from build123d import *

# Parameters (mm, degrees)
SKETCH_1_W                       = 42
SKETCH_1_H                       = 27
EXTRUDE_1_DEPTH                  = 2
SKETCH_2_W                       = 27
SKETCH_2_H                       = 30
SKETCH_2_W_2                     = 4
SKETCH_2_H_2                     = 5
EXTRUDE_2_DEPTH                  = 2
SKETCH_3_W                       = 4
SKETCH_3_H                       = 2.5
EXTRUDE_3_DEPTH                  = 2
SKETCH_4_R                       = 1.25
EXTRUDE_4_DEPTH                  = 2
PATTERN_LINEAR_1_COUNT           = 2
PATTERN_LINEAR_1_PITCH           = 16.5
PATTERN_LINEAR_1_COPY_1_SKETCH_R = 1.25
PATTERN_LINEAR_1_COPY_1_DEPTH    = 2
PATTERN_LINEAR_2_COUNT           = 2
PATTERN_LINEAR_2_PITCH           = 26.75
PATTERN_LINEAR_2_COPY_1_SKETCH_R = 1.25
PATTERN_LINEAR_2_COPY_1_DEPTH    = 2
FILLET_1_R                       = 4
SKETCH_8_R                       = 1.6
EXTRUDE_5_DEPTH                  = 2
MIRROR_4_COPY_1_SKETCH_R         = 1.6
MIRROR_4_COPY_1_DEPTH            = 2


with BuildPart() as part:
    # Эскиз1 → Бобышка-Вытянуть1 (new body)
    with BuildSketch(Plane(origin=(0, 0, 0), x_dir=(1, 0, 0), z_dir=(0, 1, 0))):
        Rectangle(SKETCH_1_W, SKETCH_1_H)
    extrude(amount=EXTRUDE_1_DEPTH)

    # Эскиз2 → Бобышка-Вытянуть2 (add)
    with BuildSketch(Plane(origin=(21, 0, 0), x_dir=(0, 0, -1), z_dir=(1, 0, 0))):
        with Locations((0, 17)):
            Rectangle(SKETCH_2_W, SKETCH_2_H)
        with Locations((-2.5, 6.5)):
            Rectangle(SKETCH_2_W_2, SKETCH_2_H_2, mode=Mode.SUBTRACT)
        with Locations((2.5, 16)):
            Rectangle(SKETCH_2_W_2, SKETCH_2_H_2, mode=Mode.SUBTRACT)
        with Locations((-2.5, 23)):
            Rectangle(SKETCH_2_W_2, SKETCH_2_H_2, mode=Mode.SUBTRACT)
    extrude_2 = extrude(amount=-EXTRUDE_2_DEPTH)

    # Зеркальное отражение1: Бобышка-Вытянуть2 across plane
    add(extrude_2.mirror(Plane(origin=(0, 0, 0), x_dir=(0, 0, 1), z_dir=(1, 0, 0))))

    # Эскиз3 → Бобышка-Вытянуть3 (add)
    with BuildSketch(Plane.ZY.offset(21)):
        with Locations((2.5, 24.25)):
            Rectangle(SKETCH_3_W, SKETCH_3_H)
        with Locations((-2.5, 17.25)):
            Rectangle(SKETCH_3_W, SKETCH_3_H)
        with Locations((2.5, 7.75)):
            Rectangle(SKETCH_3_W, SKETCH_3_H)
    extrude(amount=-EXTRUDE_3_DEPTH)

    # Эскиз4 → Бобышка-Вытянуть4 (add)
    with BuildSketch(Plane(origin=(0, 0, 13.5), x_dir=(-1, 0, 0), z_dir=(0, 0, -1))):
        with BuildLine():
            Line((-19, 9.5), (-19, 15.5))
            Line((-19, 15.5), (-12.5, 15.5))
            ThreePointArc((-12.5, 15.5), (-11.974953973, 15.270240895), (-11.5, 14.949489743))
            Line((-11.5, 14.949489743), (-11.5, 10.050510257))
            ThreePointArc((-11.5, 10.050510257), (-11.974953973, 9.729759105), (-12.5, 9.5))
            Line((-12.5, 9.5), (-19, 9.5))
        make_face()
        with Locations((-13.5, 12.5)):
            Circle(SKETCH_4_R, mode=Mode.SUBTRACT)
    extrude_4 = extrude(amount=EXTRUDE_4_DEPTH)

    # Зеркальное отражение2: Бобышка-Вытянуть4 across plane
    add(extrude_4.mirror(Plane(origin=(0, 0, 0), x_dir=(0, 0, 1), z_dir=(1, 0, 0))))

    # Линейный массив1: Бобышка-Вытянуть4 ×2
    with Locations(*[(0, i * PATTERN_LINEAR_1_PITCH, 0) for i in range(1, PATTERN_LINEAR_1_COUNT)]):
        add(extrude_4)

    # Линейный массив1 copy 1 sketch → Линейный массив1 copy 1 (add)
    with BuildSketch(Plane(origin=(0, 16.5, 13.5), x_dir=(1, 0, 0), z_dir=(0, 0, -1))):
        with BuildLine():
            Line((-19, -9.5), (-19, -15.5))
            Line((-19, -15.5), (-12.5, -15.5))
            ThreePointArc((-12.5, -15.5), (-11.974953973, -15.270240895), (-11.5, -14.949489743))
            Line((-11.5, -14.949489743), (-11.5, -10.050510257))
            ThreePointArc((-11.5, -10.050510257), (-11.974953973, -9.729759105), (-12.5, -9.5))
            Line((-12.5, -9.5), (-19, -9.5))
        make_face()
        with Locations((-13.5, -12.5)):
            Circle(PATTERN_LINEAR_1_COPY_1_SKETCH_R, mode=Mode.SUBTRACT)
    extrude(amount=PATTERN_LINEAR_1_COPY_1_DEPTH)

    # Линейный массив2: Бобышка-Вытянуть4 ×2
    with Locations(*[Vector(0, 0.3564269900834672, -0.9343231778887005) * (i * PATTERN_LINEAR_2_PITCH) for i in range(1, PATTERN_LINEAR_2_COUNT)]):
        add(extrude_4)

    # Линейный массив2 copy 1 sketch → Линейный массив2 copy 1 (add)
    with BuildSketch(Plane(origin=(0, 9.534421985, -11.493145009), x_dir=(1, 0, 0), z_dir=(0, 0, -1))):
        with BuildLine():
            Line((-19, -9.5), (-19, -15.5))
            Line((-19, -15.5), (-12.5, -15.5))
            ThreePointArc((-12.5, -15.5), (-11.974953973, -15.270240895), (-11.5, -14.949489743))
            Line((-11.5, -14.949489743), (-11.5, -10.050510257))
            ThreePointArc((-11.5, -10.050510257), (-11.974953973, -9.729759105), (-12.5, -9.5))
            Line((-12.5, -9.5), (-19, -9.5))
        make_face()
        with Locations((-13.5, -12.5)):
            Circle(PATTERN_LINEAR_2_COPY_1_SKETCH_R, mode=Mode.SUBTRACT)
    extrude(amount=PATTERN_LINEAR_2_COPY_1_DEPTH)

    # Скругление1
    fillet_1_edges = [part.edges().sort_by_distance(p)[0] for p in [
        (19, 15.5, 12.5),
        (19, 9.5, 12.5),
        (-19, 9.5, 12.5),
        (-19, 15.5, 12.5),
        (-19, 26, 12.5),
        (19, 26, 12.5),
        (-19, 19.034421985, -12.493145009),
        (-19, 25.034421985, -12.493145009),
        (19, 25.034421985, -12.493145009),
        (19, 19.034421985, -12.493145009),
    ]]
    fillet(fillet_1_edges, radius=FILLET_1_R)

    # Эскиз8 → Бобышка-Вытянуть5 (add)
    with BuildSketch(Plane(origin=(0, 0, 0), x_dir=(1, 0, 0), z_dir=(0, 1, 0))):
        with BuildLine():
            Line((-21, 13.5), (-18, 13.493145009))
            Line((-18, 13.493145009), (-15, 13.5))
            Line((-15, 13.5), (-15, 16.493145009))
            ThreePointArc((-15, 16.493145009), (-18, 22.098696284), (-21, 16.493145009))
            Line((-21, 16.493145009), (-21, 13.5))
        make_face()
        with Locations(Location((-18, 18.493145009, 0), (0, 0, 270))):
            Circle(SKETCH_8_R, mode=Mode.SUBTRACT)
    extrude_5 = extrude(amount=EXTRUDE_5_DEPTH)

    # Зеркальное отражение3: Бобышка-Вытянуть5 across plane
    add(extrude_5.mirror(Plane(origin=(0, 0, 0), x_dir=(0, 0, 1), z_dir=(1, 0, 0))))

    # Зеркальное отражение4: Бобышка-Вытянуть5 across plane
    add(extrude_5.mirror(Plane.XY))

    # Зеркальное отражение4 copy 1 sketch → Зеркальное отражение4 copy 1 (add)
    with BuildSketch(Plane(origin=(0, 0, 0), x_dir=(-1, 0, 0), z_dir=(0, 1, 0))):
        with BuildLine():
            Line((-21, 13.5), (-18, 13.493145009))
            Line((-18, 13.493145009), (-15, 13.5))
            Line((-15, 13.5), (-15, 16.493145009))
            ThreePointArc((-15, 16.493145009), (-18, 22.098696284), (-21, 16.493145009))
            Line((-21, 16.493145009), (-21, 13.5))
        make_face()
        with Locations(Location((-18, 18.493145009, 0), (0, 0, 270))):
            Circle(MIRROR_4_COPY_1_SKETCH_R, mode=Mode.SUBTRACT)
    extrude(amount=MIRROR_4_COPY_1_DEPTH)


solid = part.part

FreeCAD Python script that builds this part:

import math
import FreeCAD as App
import Part
import Sketcher

V = App.Vector


def edges_at(feature, points):
    """Names of the edges that pass closest to the given points."""
    edges = feature.Shape.Edges
    near = lambda p: min(range(len(edges)), key=lambda i: edges[i].distToShape(Part.Vertex(*p))[0])
    return sorted({f"Edge{near(p) + 1}" for p in points})


def add_polygon(sketch, points):
    """Adds a closed chain of lines whose ends are joined by coincident constraints."""
    first, n = sketch.GeometryCount, len(points)
    for a, b in zip(points, points[1:] + points[:1]):
        sketch.addGeometry(Part.LineSegment(App.Vector(*a, 0), App.Vector(*b, 0)), False)
    for i in range(n):
        sketch.addConstraint(Sketcher.Constraint("Coincident", first + i, 2, first + (i + 1) % n, 1))

doc = App.newDocument("Part")
body = doc.addObject("PartDesign::Body", "Body")

sketch1 = body.newObject("Sketcher::SketchObject", "Sketch")
sketch1.AttachmentSupport = (doc.getObject("XZ_Plane"), [""])
sketch1.MapMode = "FlatFace"
add_polygon(sketch1, [(-21, -14), (-21, 14), (21, 14), (21, -14)])
sketch1.addConstraint([
    Sketcher.Constraint("Vertical", 0),
    Sketcher.Constraint("Horizontal", 1),
    Sketcher.Constraint("Vertical", 2),
    Sketcher.Constraint("Horizontal", 3),
    Sketcher.Constraint("Symmetric", 0, 2, 2, 2, -1, 1),
    Sketcher.Constraint("DistanceX", 1, 1, 1, 2, 42.0),
    Sketcher.Constraint("DistanceY", 0, 1, 0, 2, 27.0),
])
pad1 = body.newObject("PartDesign::Pad", "Pad")
pad1.Profile = sketch1
pad1.Length = 2
pad1.Reversed = True

sketch2 = body.newObject("Sketcher::SketchObject", "Sketch001")
sketch2.AttachmentSupport = (doc.getObject("YZ_Plane"), [""])
sketch2.MapMode = "FlatFace"
sketch2.AttachmentOffset = App.Placement(V(0, 0, 21), App.Rotation())
add_polygon(sketch2, [(32, 13.5), (2, 13.5), (2, -13.5), (32, -13.5)])
add_polygon(sketch2, [(4, 0.5), (4, 4.5), (9, 4.5), (9, 0.5)])
add_polygon(sketch2, [(20.5, 0.5), (20.5, 4.5), (25.5, 4.5), (25.5, 0.5)])
add_polygon(sketch2, [(13.5, -4.5), (13.5, -0.5), (18.5, -0.5), (18.5, -4.5)])
sketch2.addConstraint([
    Sketcher.Constraint("Horizontal", 0),
    Sketcher.Constraint("Vertical", 1),
    Sketcher.Constraint("Horizontal", 2),
    Sketcher.Constraint("Vertical", 3),
    Sketcher.Constraint("Vertical", 4),
    Sketcher.Constraint("Horizontal", 5),
    Sketcher.Constraint("Vertical", 6),
    Sketcher.Constraint("Horizontal", 7),
    Sketcher.Constraint("Vertical", 8),
    Sketcher.Constraint("Horizontal", 9),
    Sketcher.Constraint("Vertical", 10),
    Sketcher.Constraint("Horizontal", 11),
    Sketcher.Constraint("Vertical", 12),
    Sketcher.Constraint("Horizontal", 13),
    Sketcher.Constraint("Vertical", 14),
    Sketcher.Constraint("Horizontal", 15),
    Sketcher.Constraint("Horizontal", 5, 2, 8, 2),
    Sketcher.Constraint("Horizontal", 7, 2, 10, 2),
    Sketcher.Constraint("Equal", 7, 9),
    Sketcher.Constraint("Equal", 11, 13),
    Sketcher.Constraint("Equal", 10, 12),
    Sketcher.Constraint("DistanceX", 0, 2, 0, 1, 30.0),
    Sketcher.Constraint("DistanceX", 5, 1, 5, 2, 5.0),
    Sketcher.Constraint("DistanceY", 1, 2, 1, 1, 27.0),
    Sketcher.Constraint("DistanceY", 4, 1, 4, 2, 4.0),
    Sketcher.Constraint("DistanceX", -1, 1, 0, 2, 2.0),
    Sketcher.Constraint("DistanceX", -1, 1, 4, 2, 4.0),
    Sketcher.Constraint("DistanceY", 4, 2, 0, 2, 9.0),
    Sketcher.Constraint("DistanceY", 12, 2, 6, 2, 1.0),
    Sketcher.Constraint("DistanceX", 12, 2, 11, 2, 7.0),
    Sketcher.Constraint("DistanceY", -1, 1, 0, 2, 13.5),
    Sketcher.Constraint("DistanceX", -1, 1, 8, 2, 20.5),
])
pad2 = body.newObject("PartDesign::Pad", "Pad001")
pad2.Profile = sketch2
pad2.Length = 2
pad2.Reversed = True
doc.recompute()

mirrored = body.newObject("PartDesign::Mirrored", "Mirrored")
mirrored.Originals = [pad2]
mirrored.MirrorPlane = (doc.getObject("YZ_Plane"), [""])
body.Tip = mirrored

sketch3 = body.newObject("Sketcher::SketchObject", "Sketch002")
sketch3.AttachmentSupport = (doc.getObject("YZ_Plane"), [""])
sketch3.MapMode = "FlatFace"
sketch3.AttachmentOffset = App.Placement(V(0, 0, -21), App.Rotation())
add_polygon(sketch3, [(25.5, 0.5), (23, 0.5), (23, 4.5), (25.5, 4.5)])
add_polygon(sketch3, [(18.5, -4.5), (16, -4.5), (16, -0.5), (18.5, -0.5)])
add_polygon(sketch3, [(9, 0.5), (6.5, 0.5), (6.5, 4.5), (9, 4.5)])
sketch3.addConstraint([
    Sketcher.Constraint("Horizontal", 0),
    Sketcher.Constraint("Vertical", 1),
    Sketcher.Constraint("Horizontal", 2),
    Sketcher.Constraint("Vertical", 3),
    Sketcher.Constraint("Horizontal", 4),
    Sketcher.Constraint("Vertical", 5),
    Sketcher.Constraint("Horizontal", 6),
    Sketcher.Constraint("Vertical", 7),
    Sketcher.Constraint("Horizontal", 8),
    Sketcher.Constraint("Vertical", 9),
    Sketcher.Constraint("Horizontal", 10),
    Sketcher.Constraint("Vertical", 11),
    Sketcher.Constraint("Horizontal", 3, 2, 8, 2),
    Sketcher.Constraint("Horizontal", 2, 2, 9, 2),
    Sketcher.Constraint("Equal", 2, 4),
    Sketcher.Constraint("Equal", 6, 8),
    Sketcher.Constraint("Equal", 3, 5),
    Sketcher.Constraint("DistanceY", 1, 1, 1, 2, 4.0),
    Sketcher.Constraint("DistanceX", 0, 2, 0, 1, 2.5),
    Sketcher.Constraint("DistanceX", -1, 1, 0, 2, 23.0),
    Sketcher.Constraint("DistanceX", -1, 1, 4, 2, 16.0),
    Sketcher.Constraint("DistanceX", -1, 1, 10, 2, 9.0),
    Sketcher.Constraint("DistanceY", 4, 2, 0, 2, 5.0),
    Sketcher.Constraint("DistanceY", -1, 1, 0, 2, 0.5),
])
pad3 = body.newObject("PartDesign::Pad", "Pad002")
pad3.Profile = sketch3
pad3.Length = 2

sketch4 = body.newObject("Sketcher::SketchObject", "Sketch003")
sketch4.AttachmentSupport = (doc.getObject("XY_Plane"), [""])
sketch4.MapMode = "FlatFace"
sketch4.AttachmentOffset = App.Placement(V(0, 0, 13.5), App.Rotation())
sketch4.addGeometry([
    Part.LineSegment(V(19, 15.5, 0), V(19, 9.5, 0)),
    Part.LineSegment(V(19, 9.5, 0), V(12.5, 9.5, 0)),
    Part.ArcOfCircle(Part.Circle(V(13.5, 12.5, 0), V(0, 0, 1), 3.2), math.radians(-129), math.radians(-108)),
    Part.LineSegment(V(11.5, 10.1, 0), V(11.5, 14.9, 0)),
    Part.ArcOfCircle(Part.Circle(V(13.5, 12.5, 0), V(0, 0, 1), 3.2), math.radians(108), math.radians(129)),
    Part.LineSegment(V(12.5, 15.5, 0), V(19, 15.5, 0)),
    Part.Circle(V(13.5, 12.5, 0), V(0, 0, 1), 1.2),
], False)
sketch4.addConstraint([
    Sketcher.Constraint("Coincident", 0, 2, 1, 1),
    Sketcher.Constraint("Coincident", 1, 2, 2, 2),
    Sketcher.Constraint("Coincident", 2, 1, 3, 1),
    Sketcher.Constraint("Coincident", 3, 2, 4, 2),
    Sketcher.Constraint("Coincident", 4, 1, 5, 1),
    Sketcher.Constraint("Coincident", 5, 2, 0, 1),
    Sketcher.Constraint("Vertical", 0),
    Sketcher.Constraint("Horizontal", 1),
    Sketcher.Constraint("Vertical", 3),
    Sketcher.Constraint("Horizontal", 5),
    Sketcher.Constraint("Coincident", 4, 3, 2, 3),
    Sketcher.Constraint("Coincident", 6, 3, 2, 3),
    Sketcher.Constraint("Equal", 2, 4),
    Sketcher.Constraint("Vertical", 1, 2, 4, 1),
    Sketcher.Constraint("Diameter", 6, 2.5),
    Sketcher.Constraint("DistanceY", 0, 2, 0, 1, 6.0),
    Sketcher.Constraint("DistanceX", 1, 2, 1, 1, 6.5),
    Sketcher.Constraint("DistanceX", -1, 1, 0, 2, 19.0),
    Sketcher.Constraint("DistanceX", 1, 2, 2, 3, 1.0),
    Sketcher.Constraint("DistanceX", 2, 1, 1, 2, 1.0),
    Sketcher.Constraint("DistanceY", -1, 1, 2, 3, 12.5),
])
pad4 = body.newObject("PartDesign::Pad", "Pad003")
pad4.Profile = sketch4
pad4.Length = 2
pad4.Reversed = True
doc.recompute()

mirrored2 = body.newObject("PartDesign::Mirrored", "Mirrored001")
mirrored2.Originals = [pad4]
mirrored2.MirrorPlane = (doc.getObject("YZ_Plane"), [""])
body.Tip = mirrored2
doc.recompute()

linearpattern = body.newObject("PartDesign::LinearPattern", "LinearPattern")
linearpattern.Originals = [pad4]
linearpattern.Direction = (doc.getObject("Y_Axis"), [""])
linearpattern.Mode = "offset"
linearpattern.Offset = 16.5
linearpattern.Occurrences = 2
body.Tip = linearpattern

sketch5 = body.newObject("Sketcher::SketchObject", "Sketch004")
sketch5.AttachmentSupport = (doc.getObject("XY_Plane"), [""])
sketch5.MapMode = "FlatFace"
sketch5.AttachmentOffset = App.Placement(V(0, 0, 13.5), App.Rotation())
sketch5.addGeometry([
    Part.LineSegment(V(-19, 26, 0), V(-19, 32, 0)),
    Part.LineSegment(V(-19, 32, 0), V(-12.5, 32, 0)),
    Part.ArcOfCircle(Part.Circle(V(-13.5, 29, 0), V(0, 0, 1), 3.2), math.radians(51), math.radians(72)),
    Part.LineSegment(V(-11.5, 31.4, 0), V(-11.5, 26.6, 0)),
    Part.ArcOfCircle(Part.Circle(V(-13.5, 29, 0), V(0, 0, 1), 3.2), math.radians(-72), math.radians(-51)),
    Part.LineSegment(V(-12.5, 26, 0), V(-19, 26, 0)),
    Part.Circle(V(-13.5, 29, 0), V(0, 0, 1), 1.2),
], False)
sketch5.addConstraint([
    Sketcher.Constraint("Coincident", 0, 2, 1, 1),
    Sketcher.Constraint("Coincident", 1, 2, 2, 2),
    Sketcher.Constraint("Coincident", 2, 1, 3, 1),
    Sketcher.Constraint("Coincident", 3, 2, 4, 2),
    Sketcher.Constraint("Coincident", 4, 1, 5, 1),
    Sketcher.Constraint("Coincident", 5, 2, 0, 1),
    Sketcher.Constraint("Vertical", 0),
    Sketcher.Constraint("Horizontal", 1),
    Sketcher.Constraint("Vertical", 3),
    Sketcher.Constraint("Horizontal", 5),
    Sketcher.Constraint("Coincident", 4, 3, 2, 3),
    Sketcher.Constraint("Coincident", 6, 3, 2, 3),
    Sketcher.Constraint("Equal", 2, 4),
    Sketcher.Constraint("Vertical", 1, 2, 4, 1),
    Sketcher.Constraint("Diameter", 6, 2.5),
    Sketcher.Constraint("DistanceY", 0, 1, 0, 2, 6.0),
    Sketcher.Constraint("DistanceX", 1, 1, 1, 2, 6.5),
    Sketcher.Constraint("DistanceY", -1, 1, 2, 3, 29.0),
    Sketcher.Constraint("DistanceX", 0, 2, -1, 1, 19.0),
    Sketcher.Constraint("DistanceX", 2, 3, 1, 2, 1.0),
    Sketcher.Constraint("DistanceX", 1, 2, 2, 1, 1.0),
])
pad5 = body.newObject("PartDesign::Pad", "Pad004")
pad5.Profile = sketch5
pad5.Length = 2
pad5.Reversed = True
doc.recompute()

datumline = body.newObject("PartDesign::Line", "DatumLine")
datumline.Placement = App.Placement(V(0, 0, 0), App.Rotation(V(0, 0, 1), V(0, 0.35642699, -0.934323178)))
linearpattern2 = body.newObject("PartDesign::LinearPattern", "LinearPattern001")
linearpattern2.Originals = [pad4]
linearpattern2.Direction = (datumline, [""])
linearpattern2.Mode = "offset"
linearpattern2.Offset = 26.75
linearpattern2.Occurrences = 2
body.Tip = linearpattern2

sketch6 = body.newObject("Sketcher::SketchObject", "Sketch005")
sketch6.AttachmentSupport = (doc.getObject("XY_Plane"), [""])
sketch6.MapMode = "FlatFace"
sketch6.AttachmentOffset = App.Placement(V(0, 0, -11.493145), App.Rotation())
sketch6.addGeometry([
    Part.LineSegment(V(-19, 19, 0), V(-19, 25, 0)),
    Part.LineSegment(V(-19, 25, 0), V(-12.5, 25, 0)),
    Part.ArcOfCircle(Part.Circle(V(-13.5, 22, 0), V(0, 0, 1), 3.2), math.radians(51), math.radians(72)),
    Part.LineSegment(V(-11.5, 24.5, 0), V(-11.5, 19.6, 0)),
    Part.ArcOfCircle(Part.Circle(V(-13.5, 22, 0), V(0, 0, 1), 3.2), math.radians(-72), math.radians(-51)),
    Part.LineSegment(V(-12.5, 19, 0), V(-19, 19, 0)),
    Part.Circle(V(-13.5, 22, 0), V(0, 0, 1), 1.2),
], False)
sketch6.addConstraint([
    Sketcher.Constraint("Coincident", 0, 2, 1, 1),
    Sketcher.Constraint("Coincident", 1, 2, 2, 2),
    Sketcher.Constraint("Coincident", 2, 1, 3, 1),
    Sketcher.Constraint("Coincident", 3, 2, 4, 2),
    Sketcher.Constraint("Coincident", 4, 1, 5, 1),
    Sketcher.Constraint("Coincident", 5, 2, 0, 1),
    Sketcher.Constraint("Vertical", 0),
    Sketcher.Constraint("Horizontal", 1),
    Sketcher.Constraint("Vertical", 3),
    Sketcher.Constraint("Horizontal", 5),
    Sketcher.Constraint("Coincident", 4, 3, 2, 3),
    Sketcher.Constraint("Coincident", 6, 3, 2, 3),
    Sketcher.Constraint("Equal", 2, 4),
    Sketcher.Constraint("Vertical", 1, 2, 4, 1),
    Sketcher.Constraint("Diameter", 6, 2.5),
    Sketcher.Constraint("DistanceY", 0, 1, 0, 2, 6.0),
    Sketcher.Constraint("DistanceX", 1, 1, 1, 2, 6.5),
    Sketcher.Constraint("DistanceX", 0, 2, -1, 1, 19.0),
    Sketcher.Constraint("DistanceX", 2, 3, 1, 2, 1.0),
    Sketcher.Constraint("DistanceX", 1, 2, 2, 1, 1.0),
    Sketcher.Constraint("DistanceY", -1, 1, 2, 3, 22.034422),
])
pad6 = body.newObject("PartDesign::Pad", "Pad005")
pad6.Profile = sketch6
pad6.Length = 2
pad6.Reversed = True
doc.recompute()

fillet = body.newObject("PartDesign::Fillet", "Fillet")
fillet.Base = (pad6, edges_at(pad6, [
    (19, 15.5, 12.5),
    (19, 9.5, 12.5),
    (-19, 9.5, 12.5),
    (-19, 15.5, 12.5),
    (-19, 26, 12.5),
    (19, 26, 12.5),
    (-19, 19.034, -12.493),
    (-19, 25.034, -12.493),
    (19, 25.034, -12.493),
    (19, 19.034, -12.493),
]))
fillet.Radius = 4

sketch7 = body.newObject("Sketcher::SketchObject", "Sketch006")
sketch7.AttachmentSupport = (doc.getObject("XZ_Plane"), [""])
sketch7.MapMode = "FlatFace"
sketch7.addGeometry([
    Part.LineSegment(V(-21, -13.5, 0), V(-18, -13.5, 0)),
    Part.LineSegment(V(-18, -13.5, 0), V(-15, -13.5, 0)),
    Part.LineSegment(V(-15, -13.5, 0), V(-15, -16.5, 0)),
    Part.ArcOfCircle(Part.Circle(V(-18, -18.5, 0), V(0, 0, 1), 3.6), math.radians(146), math.radians(394)),
    Part.LineSegment(V(-21, -16.5, 0), V(-21, -13.5, 0)),
    Part.Circle(V(-18, -18.5, 0), V(0, 0, 1), 1.6),
], False)
sketch7.addConstraint([
    Sketcher.Constraint("Coincident", 0, 2, 1, 1),
    Sketcher.Constraint("Coincident", 1, 2, 2, 1),
    Sketcher.Constraint("Coincident", 2, 2, 3, 2),
    Sketcher.Constraint("Coincident", 3, 1, 4, 1),
    Sketcher.Constraint("Coincident", 4, 2, 0, 1),
    Sketcher.Constraint("Vertical", 2),
    Sketcher.Constraint("Vertical", 4),
    Sketcher.Constraint("Coincident", 5, 3, 3, 3),
    Sketcher.Constraint("Horizontal", 2, 2, 3, 1),
    Sketcher.Constraint("Horizontal", 1, 2, 4, 2),
    Sketcher.Constraint("Vertical", 5, 3, 0, 2),
    Sketcher.Constraint("Diameter", 5, 3.2),
    Sketcher.Constraint("DistanceX", 3, 3, -1, 1, 18.0),
    Sketcher.Constraint("DistanceX", 1, 2, -1, 1, 15.0),
    Sketcher.Constraint("DistanceY", 3, 3, 0, 2, 5.0),
    Sketcher.Constraint("DistanceY", 3, 3, 2, 2, 2.0),
    Sketcher.Constraint("DistanceY", 1, 2, -1, 1, 13.5),
    Sketcher.Constraint("DistanceY", 2, 2, 2, 1, 2.993145),
])
pad7 = body.newObject("PartDesign::Pad", "Pad006")
pad7.Profile = sketch7
pad7.Length = 2
pad7.Reversed = True
doc.recompute()

mirrored3 = body.newObject("PartDesign::Mirrored", "Mirrored002")
mirrored3.Originals = [pad7]
mirrored3.MirrorPlane = (doc.getObject("YZ_Plane"), [""])
body.Tip = mirrored3
doc.recompute()

mirrored4 = body.newObject("PartDesign::Mirrored", "Mirrored003")
mirrored4.Originals = [pad7]
mirrored4.MirrorPlane = (doc.getObject("XY_Plane"), [""])
body.Tip = mirrored4

sketch8 = body.newObject("Sketcher::SketchObject", "Sketch007")
sketch8.AttachmentSupport = (doc.getObject("XZ_Plane"), [""])
sketch8.MapMode = "FlatFace"
sketch8.addGeometry([
    Part.LineSegment(V(21, 13.5, 0), V(18, 13.5, 0)),
    Part.LineSegment(V(18, 13.5, 0), V(15, 13.5, 0)),
    Part.LineSegment(V(15, 13.5, 0), V(15, 16.5, 0)),
    Part.ArcOfCircle(Part.Circle(V(18, 18.5, 0), V(0, 0, 1), 3.6), math.radians(-34), math.radians(214)),
    Part.LineSegment(V(21, 16.5, 0), V(21, 13.5, 0)),
    Part.Circle(V(18, 18.5, 0), V(0, 0, 1), 1.6),
], False)
sketch8.addConstraint([
    Sketcher.Constraint("Coincident", 0, 2, 1, 1),
    Sketcher.Constraint("Coincident", 1, 2, 2, 1),
    Sketcher.Constraint("Coincident", 2, 2, 3, 2),
    Sketcher.Constraint("Coincident", 3, 1, 4, 1),
    Sketcher.Constraint("Coincident", 4, 2, 0, 1),
    Sketcher.Constraint("Vertical", 2),
    Sketcher.Constraint("Vertical", 4),
    Sketcher.Constraint("Coincident", 5, 3, 3, 3),
    Sketcher.Constraint("Horizontal", 2, 2, 3, 1),
    Sketcher.Constraint("Horizontal", 1, 2, 4, 2),
    Sketcher.Constraint("Vertical", 5, 3, 0, 2),
    Sketcher.Constraint("Diameter", 5, 3.2),
    Sketcher.Constraint("DistanceX", -1, 1, 3, 3, 18.0),
    Sketcher.Constraint("DistanceX", -1, 1, 1, 2, 15.0),
    Sketcher.Constraint("DistanceY", 0, 2, 3, 3, 5.0),
    Sketcher.Constraint("DistanceY", 2, 2, 3, 3, 2.0),
    Sketcher.Constraint("DistanceY", -1, 1, 1, 2, 13.5),
    Sketcher.Constraint("DistanceY", 2, 1, 2, 2, 2.993145),
])
pad8 = body.newObject("PartDesign::Pad", "Pad007")
pad8.Profile = sketch8
pad8.Length = 2
pad8.Reversed = True

doc.recompute()
